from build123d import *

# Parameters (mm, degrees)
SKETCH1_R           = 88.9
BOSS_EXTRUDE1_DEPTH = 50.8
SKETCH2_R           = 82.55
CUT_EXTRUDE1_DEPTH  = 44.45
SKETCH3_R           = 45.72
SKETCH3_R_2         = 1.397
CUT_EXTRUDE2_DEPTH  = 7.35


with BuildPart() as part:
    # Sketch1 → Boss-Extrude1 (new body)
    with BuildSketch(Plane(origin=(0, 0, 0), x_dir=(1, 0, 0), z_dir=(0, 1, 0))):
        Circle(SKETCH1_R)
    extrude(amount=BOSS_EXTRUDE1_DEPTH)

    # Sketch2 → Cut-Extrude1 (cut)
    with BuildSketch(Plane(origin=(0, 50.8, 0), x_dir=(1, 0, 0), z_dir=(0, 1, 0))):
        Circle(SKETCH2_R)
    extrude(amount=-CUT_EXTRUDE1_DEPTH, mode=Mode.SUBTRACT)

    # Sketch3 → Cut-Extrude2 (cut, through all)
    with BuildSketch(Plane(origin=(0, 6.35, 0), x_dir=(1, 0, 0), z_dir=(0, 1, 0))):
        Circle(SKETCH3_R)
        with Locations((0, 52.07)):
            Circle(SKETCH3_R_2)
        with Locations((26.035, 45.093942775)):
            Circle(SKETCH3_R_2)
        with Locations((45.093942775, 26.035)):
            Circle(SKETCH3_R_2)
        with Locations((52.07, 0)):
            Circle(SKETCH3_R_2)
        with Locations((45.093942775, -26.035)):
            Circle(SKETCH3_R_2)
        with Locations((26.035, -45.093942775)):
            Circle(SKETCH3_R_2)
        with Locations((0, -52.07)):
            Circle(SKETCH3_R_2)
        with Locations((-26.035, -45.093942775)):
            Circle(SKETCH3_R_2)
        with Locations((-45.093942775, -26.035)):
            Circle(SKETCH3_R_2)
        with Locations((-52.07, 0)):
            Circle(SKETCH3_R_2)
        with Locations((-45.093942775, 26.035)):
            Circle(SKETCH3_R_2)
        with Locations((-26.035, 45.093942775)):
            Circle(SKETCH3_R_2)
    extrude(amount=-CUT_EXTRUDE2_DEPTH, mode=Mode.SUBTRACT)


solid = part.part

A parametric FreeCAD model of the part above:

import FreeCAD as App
import Part
import Sketcher

V = App.Vector
Q = App.Units.Quantity

doc = App.newDocument("Part")
body = doc.addObject("PartDesign::Body", "Body")

sketch1 = body.newObject("Sketcher::SketchObject", "Sketch")
sketch1.AttachmentSupport = (doc.getObject("XZ_Plane"), [""])
sketch1.MapMode = "FlatFace"
sketch1.addGeometry(Part.Circle(V(0, 0, 0), V(0, 0, 1), 89), False)
sketch1.addConstraint([
    Sketcher.Constraint("Coincident", 0, 3, -1, 1),
    Sketcher.Constraint("Diameter", 0, Q("7 in")),
])
pad1 = body.newObject("PartDesign::Pad", "Pad")
pad1.Profile = sketch1
pad1.Length = Q("2 in")
pad1.Reversed = True

sketch2 = body.newObject("Sketcher::SketchObject", "Sketch001")
sketch2.AttachmentSupport = (doc.getObject("XZ_Plane"), [""])
sketch2.MapMode = "FlatFace"
sketch2.AttachmentOffset = App.Placement(V(0, 0, -2 * 25.4), App.Rotation())
sketch2.addGeometry(Part.Circle(V(0, 0, 0), V(0, 0, 1), 83), False)
sketch2.addConstraint([
    Sketcher.Constraint("Coincident", 0, 3, -1, 1),
    Sketcher.Constraint("Diameter", 0, Q("6.5 in")),
])
pocket1 = body.newObject("PartDesign::Pocket", "Pocket")
pocket1.Profile = sketch2
pocket1.Length = Q("1.75 in")
pocket1.Reversed = True

sketch3 = body.newObject("Sketcher::SketchObject", "Sketch002")
sketch3.AttachmentSupport = (doc.getObject("XZ_Plane"), [""])
sketch3.MapMode = "FlatFace"
sketch3.AttachmentOffset = App.Placement(V(0, 0, -0.25 * 25.4), App.Rotation())
sketch3.addGeometry([
    Part.Circle(V(0, 0, 0), V(0, 0, 1), 45.7),
    Part.Circle(V(0, -52.1, 0), V(0, 0, 1), 1.4),
    Part.Circle(V(26, -45.1, 0), V(0, 0, 1), 1.4),
    Part.Circle(V(45.1, -26, 0), V(0, 0, 1), 1.4),
    Part.Circle(V(52.1, 0, 0), V(0, 0, 1), 1.4),
    Part.Circle(V(45.1, 26, 0), V(0, 0, 1), 1.4),
    Part.Circle(V(26, 45.1, 0), V(0, 0, 1), 1.4),
    Part.Circle(V(0, 52.1, 0), V(0, 0, 1), 1.4),
    Part.Circle(V(-26, 45.1, 0), V(0, 0, 1), 1.4),
    Part.Circle(V(-45.1, 26, 0), V(0, 0, 1), 1.4),
    Part.Circle(V(-52.1, 0, 0), V(0, 0, 1), 1.4),
    Part.Circle(V(-45.1, -26, 0), V(0, 0, 1), 1.4),
    Part.Circle(V(-26, -45.1, 0), V(0, 0, 1), 1.4),
], False)
sketch3.addConstraint([
    Sketcher.Constraint("Coincident", 0, 3, -1, 1),
    Sketcher.Constraint("Equal", 1, 2),
    Sketcher.Constraint("Equal", 2, 3),
    Sketcher.Constraint("Equal", 3, 4),
    Sketcher.Constraint("Equal", 4, 5),
    Sketcher.Constraint("Equal", 5, 6),
    Sketcher.Constraint("Equal", 6, 7),
    Sketcher.Constraint("Equal", 7, 8),
    Sketcher.Constraint("Equal", 8, 9),
    Sketcher.Constraint("Equal", 9, 10),
    Sketcher.Constraint("Equal", 10, 11),
    Sketcher.Constraint("Equal", 11, 12),
    Sketcher.Constraint("Symmetric", 1, 3, 7, 3, -1, 1),
    Sketcher.Constraint("Symmetric", 2, 3, 8, 3, -1, 1),
    Sketcher.Constraint("Symmetric", 3, 3, 9, 3, -1, 1),
    Sketcher.Constraint("Symmetric", 4, 3, 10, 3, -1, 1),
    Sketcher.Constraint("Symmetric", 5, 3, 11, 3, -1, 1),
    Sketcher.Constraint("Symmetric", 6, 3, 12, 3, -1, 1),
    Sketcher.Constraint("Symmetric", 6, 3, 8, 3, -2),
    Sketcher.Constraint("Symmetric", 5, 3, 9, 3, -2),
    Sketcher.Constraint("PointOnObject", 1, 3, -2),
    Sketcher.Constraint("PointOnObject", 4, 3, -1),
    Sketcher.Constraint("Diameter", 0, Q("3.6 in")),
    Sketcher.Constraint("Diameter", 1, Q("0.11 in")),
    Sketcher.Constraint("DistanceY", 1, 3, -1, 1, Q("2.05 in")),
    Sketcher.Constraint("DistanceX", -1, 1, 4, 3, Q("2.05 in")),
    Sketcher.Constraint("DistanceY", 3, 3, 5, 3, Q("2.05 in")),
    Sketcher.Constraint("DistanceX", 8, 3, 6, 3, Q("2.05 in")),
    Sketcher.Constraint("DistanceY", 2, 3, -1, 1, Q("45.093943 mm")),
    Sketcher.Constraint("DistanceX", -1, 1, 3, 3, Q("45.093943 mm")),
])
pocket2 = body.newObject("PartDesign::Pocket", "Pocket001")
pocket2.Profile = sketch3
pocket2.Type = "ThroughAll"
pocket2.Reversed = True

doc.recompute()
